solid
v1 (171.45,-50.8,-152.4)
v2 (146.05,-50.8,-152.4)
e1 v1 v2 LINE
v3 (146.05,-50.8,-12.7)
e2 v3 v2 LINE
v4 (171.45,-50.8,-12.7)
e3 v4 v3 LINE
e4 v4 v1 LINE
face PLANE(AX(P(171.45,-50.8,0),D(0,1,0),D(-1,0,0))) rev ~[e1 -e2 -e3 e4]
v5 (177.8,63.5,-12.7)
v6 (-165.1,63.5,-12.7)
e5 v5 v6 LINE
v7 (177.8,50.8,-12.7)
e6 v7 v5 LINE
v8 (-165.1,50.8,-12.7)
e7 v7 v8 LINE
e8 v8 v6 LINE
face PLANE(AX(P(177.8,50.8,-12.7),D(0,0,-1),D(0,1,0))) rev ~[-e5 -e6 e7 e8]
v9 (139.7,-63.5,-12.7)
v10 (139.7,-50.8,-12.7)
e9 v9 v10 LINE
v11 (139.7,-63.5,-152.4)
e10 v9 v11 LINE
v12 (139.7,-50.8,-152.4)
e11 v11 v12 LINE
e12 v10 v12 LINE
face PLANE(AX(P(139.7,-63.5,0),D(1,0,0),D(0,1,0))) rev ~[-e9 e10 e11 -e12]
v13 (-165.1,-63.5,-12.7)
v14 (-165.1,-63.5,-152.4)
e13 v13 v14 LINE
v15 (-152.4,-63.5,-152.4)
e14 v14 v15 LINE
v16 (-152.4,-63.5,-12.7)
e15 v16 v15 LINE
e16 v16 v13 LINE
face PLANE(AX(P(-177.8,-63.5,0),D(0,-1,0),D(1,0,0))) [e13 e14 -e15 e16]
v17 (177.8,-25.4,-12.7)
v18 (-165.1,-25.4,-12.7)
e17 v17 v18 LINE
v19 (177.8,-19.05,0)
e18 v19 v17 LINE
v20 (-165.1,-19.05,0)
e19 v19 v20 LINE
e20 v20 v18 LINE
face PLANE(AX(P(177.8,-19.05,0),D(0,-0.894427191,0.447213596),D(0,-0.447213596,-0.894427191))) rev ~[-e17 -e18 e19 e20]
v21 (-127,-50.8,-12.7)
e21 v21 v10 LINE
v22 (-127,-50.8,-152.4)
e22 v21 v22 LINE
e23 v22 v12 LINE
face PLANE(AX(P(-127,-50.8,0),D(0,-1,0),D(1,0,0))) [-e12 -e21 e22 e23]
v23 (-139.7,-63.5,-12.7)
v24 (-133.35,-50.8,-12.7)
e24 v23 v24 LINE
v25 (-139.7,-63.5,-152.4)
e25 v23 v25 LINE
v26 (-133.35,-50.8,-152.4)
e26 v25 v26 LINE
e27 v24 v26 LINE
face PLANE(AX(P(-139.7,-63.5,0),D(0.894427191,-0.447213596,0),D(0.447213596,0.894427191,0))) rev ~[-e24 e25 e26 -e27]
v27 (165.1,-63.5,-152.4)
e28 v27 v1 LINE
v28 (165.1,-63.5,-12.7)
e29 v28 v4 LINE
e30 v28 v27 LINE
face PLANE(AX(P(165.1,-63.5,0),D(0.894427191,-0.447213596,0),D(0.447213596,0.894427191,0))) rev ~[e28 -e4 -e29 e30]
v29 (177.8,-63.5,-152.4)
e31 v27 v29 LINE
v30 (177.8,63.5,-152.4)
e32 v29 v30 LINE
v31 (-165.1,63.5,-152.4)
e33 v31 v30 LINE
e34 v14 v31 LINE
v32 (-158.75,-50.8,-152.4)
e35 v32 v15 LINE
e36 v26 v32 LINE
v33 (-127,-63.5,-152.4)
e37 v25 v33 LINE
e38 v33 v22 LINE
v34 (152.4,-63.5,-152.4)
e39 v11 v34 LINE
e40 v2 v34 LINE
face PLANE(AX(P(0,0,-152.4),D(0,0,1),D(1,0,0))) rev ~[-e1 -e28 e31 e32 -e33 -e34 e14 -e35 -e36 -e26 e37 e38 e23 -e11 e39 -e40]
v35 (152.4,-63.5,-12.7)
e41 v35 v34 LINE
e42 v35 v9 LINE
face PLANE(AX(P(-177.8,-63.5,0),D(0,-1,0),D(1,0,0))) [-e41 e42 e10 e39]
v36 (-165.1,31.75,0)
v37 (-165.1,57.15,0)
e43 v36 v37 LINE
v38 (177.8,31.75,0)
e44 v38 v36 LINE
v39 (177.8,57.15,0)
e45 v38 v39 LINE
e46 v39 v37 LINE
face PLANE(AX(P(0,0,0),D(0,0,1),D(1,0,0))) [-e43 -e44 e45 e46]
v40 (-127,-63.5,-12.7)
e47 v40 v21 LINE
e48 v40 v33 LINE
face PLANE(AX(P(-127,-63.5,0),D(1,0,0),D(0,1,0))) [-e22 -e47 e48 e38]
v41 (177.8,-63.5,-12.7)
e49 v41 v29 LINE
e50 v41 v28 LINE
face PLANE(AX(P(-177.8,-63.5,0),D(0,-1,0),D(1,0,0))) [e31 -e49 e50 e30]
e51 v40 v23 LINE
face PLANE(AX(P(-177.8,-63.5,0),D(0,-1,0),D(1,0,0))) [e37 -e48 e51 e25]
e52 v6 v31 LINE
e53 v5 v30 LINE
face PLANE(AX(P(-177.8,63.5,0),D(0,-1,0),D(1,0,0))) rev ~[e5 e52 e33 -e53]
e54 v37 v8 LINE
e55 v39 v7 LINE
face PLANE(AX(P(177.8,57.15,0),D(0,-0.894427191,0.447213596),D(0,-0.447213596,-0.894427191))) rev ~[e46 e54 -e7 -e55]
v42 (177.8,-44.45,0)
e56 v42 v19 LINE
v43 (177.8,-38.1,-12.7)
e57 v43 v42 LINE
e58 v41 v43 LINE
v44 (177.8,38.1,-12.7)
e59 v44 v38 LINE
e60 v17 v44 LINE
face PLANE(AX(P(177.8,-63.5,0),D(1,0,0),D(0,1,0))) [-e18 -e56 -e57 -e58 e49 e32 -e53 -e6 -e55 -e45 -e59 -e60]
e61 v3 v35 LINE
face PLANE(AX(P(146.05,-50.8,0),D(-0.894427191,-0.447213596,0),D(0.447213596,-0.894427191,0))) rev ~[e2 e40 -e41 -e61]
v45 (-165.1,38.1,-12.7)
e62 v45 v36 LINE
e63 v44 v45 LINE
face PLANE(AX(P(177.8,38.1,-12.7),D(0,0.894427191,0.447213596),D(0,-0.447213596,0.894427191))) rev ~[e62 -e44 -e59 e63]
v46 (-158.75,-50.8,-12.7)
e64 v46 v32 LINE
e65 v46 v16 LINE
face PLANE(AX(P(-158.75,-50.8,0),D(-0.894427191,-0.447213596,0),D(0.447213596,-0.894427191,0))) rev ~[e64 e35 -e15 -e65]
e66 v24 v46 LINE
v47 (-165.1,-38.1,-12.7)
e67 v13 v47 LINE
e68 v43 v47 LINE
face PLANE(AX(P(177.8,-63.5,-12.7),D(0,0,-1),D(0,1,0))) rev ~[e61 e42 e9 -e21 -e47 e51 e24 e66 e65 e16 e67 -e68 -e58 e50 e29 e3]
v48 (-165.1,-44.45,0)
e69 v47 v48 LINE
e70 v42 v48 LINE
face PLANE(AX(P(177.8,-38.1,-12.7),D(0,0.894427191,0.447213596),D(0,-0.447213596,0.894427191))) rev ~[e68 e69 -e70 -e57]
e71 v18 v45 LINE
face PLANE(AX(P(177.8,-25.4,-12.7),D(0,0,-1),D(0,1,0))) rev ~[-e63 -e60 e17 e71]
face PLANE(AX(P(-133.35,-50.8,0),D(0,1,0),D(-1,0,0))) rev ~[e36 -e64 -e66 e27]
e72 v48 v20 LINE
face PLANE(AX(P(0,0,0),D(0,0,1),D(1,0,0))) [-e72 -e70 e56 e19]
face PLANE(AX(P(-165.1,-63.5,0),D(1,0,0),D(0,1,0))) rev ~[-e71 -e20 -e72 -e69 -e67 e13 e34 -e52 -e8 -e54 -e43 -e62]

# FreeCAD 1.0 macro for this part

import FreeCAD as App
import Part
import Sketcher
from FreeCAD import Vector
Q = App.Units.Quantity

doc = App.newDocument("Part")
body = doc.addObject("PartDesign::Body", "Body")

sketch1 = doc.addObject("Sketcher::SketchObject", "Sketch")
body.addObject(sketch1)
sketch1.AttachmentSupport = (doc.XY_Plane, [""])
sketch1.MapMode = "FlatFace"
sketch1.addGeometry(Part.LineSegment(Vector(-178, 64, 0), Vector(-178, -64, 0)), False)
sketch1.addGeometry(Part.LineSegment(Vector(-178, -64, 0), Vector(178, -64, 0)), False)
sketch1.addGeometry(Part.LineSegment(Vector(178, -64, 0), Vector(178, 64, 0)), False)
sketch1.addGeometry(Part.LineSegment(Vector(178, 64, 0), Vector(-178, 64, 0)), False)
sketch1.addConstraint(Sketcher.Constraint("Coincident", 0, 2, 1, 1))
sketch1.addConstraint(Sketcher.Constraint("Coincident", 1, 2, 2, 1))
sketch1.addConstraint(Sketcher.Constraint("Coincident", 2, 2, 3, 1))
sketch1.addConstraint(Sketcher.Constraint("Coincident", 3, 2, 0, 1))
sketch1.addConstraint(Sketcher.Constraint("Vertical", 0))
sketch1.addConstraint(Sketcher.Constraint("Horizontal", 1))
sketch1.addConstraint(Sketcher.Constraint("Vertical", 2))
sketch1.addConstraint(Sketcher.Constraint("Horizontal", 3))
sketch1.addConstraint(Sketcher.Constraint("Symmetric", 0, 2, 2, 2, -1, 1))
sketch1.addConstraint(Sketcher.Constraint("DistanceX", 1, 1, 1, 2, Q("14 in")))
sketch1.addConstraint(Sketcher.Constraint("DistanceY", 0, 2, 0, 1, Q("5 in")))
pad1 = doc.addObject("PartDesign::Pad", "Pad")
body.addObject(pad1)
pad1.Profile = sketch1
pad1.Length = Q("6 in")
pad1.Reversed = True

sketch2 = doc.addObject("Sketcher::SketchObject", "Sketch001")
body.addObject(sketch2)
sketch2.AttachmentSupport = (doc.XY_Plane, [""])
sketch2.MapMode = "FlatFace"
sketch2.addGeometry(Part.LineSegment(Vector(152, -64, 0), Vector(165, -64, 0)), False)
sketch2.addGeometry(Part.LineSegment(Vector(165, -64, 0), Vector(171, -51, 0)), False)
sketch2.addGeometry(Part.LineSegment(Vector(171, -51, 0), Vector(146, -51, 0)), False)
sketch2.addGeometry(Part.LineSegment(Vector(146, -51, 0), Vector(152, -64, 0)), False)
sketch2.addGeometry(Part.LineSegment(Vector(-127, -51, 0), Vector(-127, -64, 0)), False)
sketch2.addGeometry(Part.LineSegment(Vector(-127, -64, 0), Vector(140, -64, 0)), False)
sketch2.addGeometry(Part.LineSegment(Vector(140, -64, 0), Vector(140, -51, 0)), False)
sketch2.addGeometry(Part.LineSegment(Vector(140, -51, 0), Vector(-127, -51, 0)), False)
sketch2.addGeometry(Part.LineSegment(Vector(-140, -64, 0), Vector(-133, -51, 0)), False)
sketch2.addGeometry(Part.LineSegment(Vector(-133, -51, 0), Vector(-159, -51, 0)), False)
sketch2.addGeometry(Part.LineSegment(Vector(-159, -51, 0), Vector(-152, -64, 0)), False)
sketch2.addGeometry(Part.LineSegment(Vector(-152, -64, 0), Vector(-140, -64, 0)), False)
sketch2.addConstraint(Sketcher.Constraint("Coincident", 0, 2, 1, 1))
sketch2.addConstraint(Sketcher.Constraint("Coincident", 1, 2, 2, 1))
sketch2.addConstraint(Sketcher.Constraint("Coincident", 2, 2, 3, 1))
sketch2.addConstraint(Sketcher.Constraint("Coincident", 3, 2, 0, 1))
sketch2.addConstraint(Sketcher.Constraint("Coincident", 4, 2, 5, 1))
sketch2.addConstraint(Sketcher.Constraint("Coincident", 5, 2, 6, 1))
sketch2.addConstraint(Sketcher.Constraint("Coincident", 6, 2, 7, 1))
sketch2.addConstraint(Sketcher.Constraint("Coincident", 7, 2, 4, 1))
sketch2.addConstraint(Sketcher.Constraint("Coincident", 8, 2, 9, 1))
sketch2.addConstraint(Sketcher.Constraint("Coincident", 9, 2, 10, 1))
sketch2.addConstraint(Sketcher.Constraint("Coincident", 10, 2, 11, 1))
sketch2.addConstraint(Sketcher.Constraint("Coincident", 11, 2, 8, 1))
sketch2.addConstraint(Sketcher.Constraint("Horizontal", 0))
sketch2.addConstraint(Sketcher.Constraint("Horizontal", 2))
sketch2.addConstraint(Sketcher.Constraint("Vertical", 4))
sketch2.addConstraint(Sketcher.Constraint("Horizontal", 5))
sketch2.addConstraint(Sketcher.Constraint("Vertical", 6))
sketch2.addConstraint(Sketcher.Constraint("Horizontal", 7))
sketch2.addConstraint(Sketcher.Constraint("Horizontal", 9))
sketch2.addConstraint(Sketcher.Constraint("Horizontal", 11))
sketch2.addConstraint(Sketcher.Constraint("Symmetric", 3, 2, 10, 2, -2))
sketch2.addConstraint(Sketcher.Constraint("Symmetric", 5, 2, 11, 2, -2))
sketch2.addConstraint(Sketcher.Constraint("Parallel", 1, 8))
sketch2.addConstraint(Sketcher.Constraint("Parallel", 3, 10))
sketch2.addConstraint(Sketcher.Constraint("Horizontal", 2, 2, 6, 2))
sketch2.addConstraint(Sketcher.Constraint("Horizontal", 7, 2, 8, 2))
sketch2.addConstraint(Sketcher.Constraint("Equal", 2, 9))
sketch2.addConstraint(Sketcher.Constraint("Equal", 11, 4))
sketch2.addConstraint(Sketcher.Constraint("Equal", 1, 3))
sketch2.addConstraint(Sketcher.Constraint("DistanceX", 2, 2, 2, 1, Q("1 in")))
sketch2.addConstraint(Sketcher.Constraint("DistanceX", 0, 1, 0, 2, Q("0.5 in")))
sketch2.addConstraint(Sketcher.Constraint("DistanceX", 5, 1, 5, 2, Q("10.5 in")))
sketch2.addConstraint(Sketcher.Constraint("DistanceY", 1, 2, -1, 1, Q("2 in")))
sketch2.addConstraint(Sketcher.Constraint("DistanceX", -1, 1, 3, 2, Q("6 in")))
pocket1 = doc.addObject("PartDesign::Pocket", "Pocket")
body.addObject(pocket1)
pocket1.Profile = sketch2
pocket1.Length = Q("6 in")

sketch3 = doc.addObject("Sketcher::SketchObject", "Sketch002")
body.addObject(sketch3)
sketch3.AttachmentSupport = (doc.XY_Plane, [""])
sketch3.MapMode = "FlatFace"
sketch3.addGeometry(Part.LineSegment(Vector(-178, -64, 0), Vector(-165, -64, 0)), False)
sketch3.addGeometry(Part.LineSegment(Vector(-165, -64, 0), Vector(-165, 64, 0)), False)
sketch3.addGeometry(Part.LineSegment(Vector(-165, 64, 0), Vector(-178, 64, 0)), False)
sketch3.addGeometry(Part.LineSegment(Vector(-178, 64, 0), Vector(-178, -64, 0)), False)
sketch3.addConstraint(Sketcher.Constraint("Coincident", 0, 2, 1, 1))
sketch3.addConstraint(Sketcher.Constraint("Coincident", 1, 2, 2, 1))
sketch3.addConstraint(Sketcher.Constraint("Coincident", 2, 2, 3, 1))
sketch3.addConstraint(Sketcher.Constraint("Coincident", 3, 2, 0, 1))
sketch3.addConstraint(Sketcher.Constraint("Horizontal", 0))
sketch3.addConstraint(Sketcher.Constraint("Vertical", 1))
sketch3.addConstraint(Sketcher.Constraint("Horizontal", 2))
sketch3.addConstraint(Sketcher.Constraint("Vertical", 3))
sketch3.addConstraint(Sketcher.Constraint("DistanceY", 1, 1, 1, 2, Q("5 in")))
sketch3.addConstraint(Sketcher.Constraint("DistanceX", 0, 1, 0, 2, Q("0.5 in")))
sketch3.addConstraint(Sketcher.Constraint("DistanceX", 2, 2, -1, 1, Q("7 in")))
sketch3.addConstraint(Sketcher.Constraint("DistanceY", 0, 2, -1, 1, Q("2.5 in")))
pocket2 = doc.addObject("PartDesign::Pocket", "Pocket001")
body.addObject(pocket2)
pocket2.Profile = sketch3
pocket2.Length = Q("6 in")

sketch4 = doc.addObject("Sketcher::SketchObject", "Sketch003")
body.addObject(sketch4)
sketch4.AttachmentSupport = (doc.YZ_Plane, [""])
sketch4.MapMode = "FlatFace"
sketch4.AttachmentOffset = App.Placement(Vector(0, 0, 7 * 25.4), App.Rotation())
sketch4.addGeometry(Part.LineSegment(Vector(-64, 0, 0), Vector(-64, -13, 0)), False)
sketch4.addGeometry(Part.LineSegment(Vector(-64, -13, 0), Vector(-38, -13, 0)), False)
sketch4.addGeometry(Part.LineSegment(Vector(-38, -13, 0), Vector(-44, 0, 0)), False)
sketch4.addGeometry(Part.LineSegment(Vector(-44, 0, 0), Vector(-64, 0, 0)), False)
sketch4.addGeometry(Part.LineSegment(Vector(-19, 0, 0), Vector(-25, -13, 0)), False)
sketch4.addGeometry(Part.LineSegment(Vector(-25, -13, 0), Vector(38, -13, 0)), False)
sketch4.addGeometry(Part.LineSegment(Vector(38, -13, 0), Vector(32, 0, 0)), False)
sketch4.addGeometry(Part.LineSegment(Vector(32, 0, 0), Vector(-19, 0, 0)), False)
sketch4.addGeometry(Part.LineSegment(Vector(57, 0, 0), Vector(51, -13, 0)), False)
sketch4.addGeometry(Part.LineSegment(Vector(51, -13, 0), Vector(64, -13, 0)), False)
sketch4.addGeometry(Part.LineSegment(Vector(64, -13, 0), Vector(64, 0, 0)), False)
sketch4.addGeometry(Part.LineSegment(Vector(64, 0, 0), Vector(57, 0, 0)), False)
sketch4.addConstraint(Sketcher.Constraint("Coincident", 0, 2, 1, 1))
sketch4.addConstraint(Sketcher.Constraint("Coincident", 1, 2, 2, 1))
sketch4.addConstraint(Sketcher.Constraint("Coincident", 2, 2, 3, 1))
sketch4.addConstraint(Sketcher.Constraint("Coincident", 3, 2, 0, 1))
sketch4.addConstraint(Sketcher.Constraint("Coincident", 4, 2, 5, 1))
sketch4.addConstraint(Sketcher.Constraint("Coincident", 5, 2, 6, 1))
sketch4.addConstraint(Sketcher.Constraint("Coincident", 6, 2, 7, 1))
sketch4.addConstraint(Sketcher.Constraint("Coincident", 7, 2, 4, 1))
sketch4.addConstraint(Sketcher.Constraint("Coincident", 8, 2, 9, 1))
sketch4.addConstraint(Sketcher.Constraint("Coincident", 9, 2, 10, 1))
sketch4.addConstraint(Sketcher.Constraint("Coincident", 10, 2, 11, 1))
sketch4.addConstraint(Sketcher.Constraint("Coincident", 11, 2, 8, 1))
sketch4.addConstraint(Sketcher.Constraint("Vertical", 0))
sketch4.addConstraint(Sketcher.Constraint("Horizontal", 1))
sketch4.addConstraint(Sketcher.Constraint("Horizontal", 3))
sketch4.addConstraint(Sketcher.Constraint("Horizontal", 5))
sketch4.addConstraint(Sketcher.Constraint("Horizontal", 7))
sketch4.addConstraint(Sketcher.Constraint("Horizontal", 9))
sketch4.addConstraint(Sketcher.Constraint("Vertical", 10))
sketch4.addConstraint(Sketcher.Constraint("Horizontal", 11))
sketch4.addConstraint(Sketcher.Constraint("Symmetric", 3, 2, 10, 2, -1, 1))
sketch4.addConstraint(Sketcher.Constraint("Symmetric", 1, 2, 5, 2, -2))
sketch4.addConstraint(Sketcher.Constraint("PointOnObject", 2, 2, -1))
sketch4.addConstraint(Sketcher.Constraint("PointOnObject", 6, 2, -1))
sketch4.addConstraint(Sketcher.Constraint("Parallel", 2, 6))
sketch4.addConstraint(Sketcher.Constraint("Parallel", 4, 8))
sketch4.addConstraint(Sketcher.Constraint("Horizontal", 5, 2, 8, 2))
sketch4.addConstraint(Sketcher.Constraint("Equal", 9, 0))
sketch4.addConstraint(Sketcher.Constraint("Equal", 2, 4))
sketch4.addConstraint(Sketcher.Constraint("DistanceX", 1, 1, 1, 2, Q("1 in")))
sketch4.addConstraint(Sketcher.Constraint("DistanceX", 7, 2, 7, 1, Q("2 in")))
sketch4.addConstraint(Sketcher.Constraint("DistanceX", 5, 1, 5, 2, Q("2.5 in")))
sketch4.addConstraint(Sketcher.Constraint("DistanceX", 9, 1, 9, 2, Q("0.5 in")))
sketch4.addConstraint(Sketcher.Constraint("DistanceX", 4, 2, -1, 1, Q("1 in")))
pocket3 = doc.addObject("PartDesign::Pocket", "Pocket002")
body.addObject(pocket3)
pocket3.Profile = sketch4
pocket3.Length = Q("13.5 in")

doc.recompute()
